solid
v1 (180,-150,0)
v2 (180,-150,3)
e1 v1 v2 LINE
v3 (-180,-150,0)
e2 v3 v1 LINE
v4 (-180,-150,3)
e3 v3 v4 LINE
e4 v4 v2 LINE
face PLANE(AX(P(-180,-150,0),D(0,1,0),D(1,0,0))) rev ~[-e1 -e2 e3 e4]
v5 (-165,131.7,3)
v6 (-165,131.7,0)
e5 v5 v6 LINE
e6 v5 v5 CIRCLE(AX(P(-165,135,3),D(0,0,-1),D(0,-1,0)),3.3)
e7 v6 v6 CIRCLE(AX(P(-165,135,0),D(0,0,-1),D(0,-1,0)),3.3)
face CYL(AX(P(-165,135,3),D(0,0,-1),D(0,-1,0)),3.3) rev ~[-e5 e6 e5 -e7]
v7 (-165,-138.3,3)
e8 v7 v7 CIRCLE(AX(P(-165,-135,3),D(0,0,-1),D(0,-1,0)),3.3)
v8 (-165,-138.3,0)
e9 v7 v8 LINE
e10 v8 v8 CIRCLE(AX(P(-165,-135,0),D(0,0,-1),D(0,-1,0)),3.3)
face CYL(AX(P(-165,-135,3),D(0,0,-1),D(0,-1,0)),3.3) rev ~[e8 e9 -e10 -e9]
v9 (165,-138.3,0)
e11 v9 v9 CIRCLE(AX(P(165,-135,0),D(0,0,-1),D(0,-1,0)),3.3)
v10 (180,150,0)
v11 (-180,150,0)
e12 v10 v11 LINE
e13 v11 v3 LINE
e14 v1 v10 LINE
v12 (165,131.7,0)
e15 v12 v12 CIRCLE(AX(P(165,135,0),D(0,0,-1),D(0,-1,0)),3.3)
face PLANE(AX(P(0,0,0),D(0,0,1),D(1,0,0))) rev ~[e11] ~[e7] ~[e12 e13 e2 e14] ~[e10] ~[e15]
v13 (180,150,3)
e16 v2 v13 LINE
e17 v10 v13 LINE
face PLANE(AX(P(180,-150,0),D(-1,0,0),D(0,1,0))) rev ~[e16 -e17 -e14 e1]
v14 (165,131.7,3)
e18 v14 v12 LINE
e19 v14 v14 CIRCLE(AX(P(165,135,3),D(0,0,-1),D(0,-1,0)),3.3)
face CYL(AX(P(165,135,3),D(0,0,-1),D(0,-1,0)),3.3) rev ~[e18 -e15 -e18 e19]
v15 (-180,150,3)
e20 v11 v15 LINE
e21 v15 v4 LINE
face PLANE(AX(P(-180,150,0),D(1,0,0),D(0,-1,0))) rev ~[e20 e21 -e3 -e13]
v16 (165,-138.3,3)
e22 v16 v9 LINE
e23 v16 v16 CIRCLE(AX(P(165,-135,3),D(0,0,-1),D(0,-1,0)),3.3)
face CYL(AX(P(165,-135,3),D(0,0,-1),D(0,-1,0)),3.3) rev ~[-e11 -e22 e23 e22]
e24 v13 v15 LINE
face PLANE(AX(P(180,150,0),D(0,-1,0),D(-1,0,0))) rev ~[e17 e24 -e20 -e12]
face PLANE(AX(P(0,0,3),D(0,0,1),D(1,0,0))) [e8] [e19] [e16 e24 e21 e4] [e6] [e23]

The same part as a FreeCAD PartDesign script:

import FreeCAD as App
import Part
import Sketcher
Q = App.Units.Quantity


def add_polygon(sketch, points):
    """Adds a closed chain of lines whose ends are joined by coincident constraints."""
    first, n = sketch.GeometryCount, len(points)
    for a, b in zip(points, points[1:] + points[:1]):
        sketch.addGeometry(Part.LineSegment(App.Vector(*a, 0), App.Vector(*b, 0)), False)
    for i in range(n):
        sketch.addConstraint(Sketcher.Constraint("Coincident", first + i, 2, first + (i + 1) % n, 1))

doc = App.newDocument("Part")
body = doc.addObject("PartDesign::Body", "Body")

# Sketch on XY plane
sketch1 = body.newObject("Sketcher::SketchObject", "Sketch")
sketch1.AttachmentSupport = (doc.getObject("XY_Plane"), [""])
sketch1.MapMode = "FlatFace"
add_polygon(sketch1, [(180, -150), (180, 150), (-180, 150), (-180, -150)])  # lines 0-3
sketch1.addConstraint([
    Sketcher.Constraint("Vertical", 0),
    Sketcher.Constraint("Horizontal", 1),
    Sketcher.Constraint("Vertical", 2),
    Sketcher.Constraint("Horizontal", 3),
    Sketcher.Constraint("Symmetric", 0, 2, 2, 2, -1, 1),
    Sketcher.Constraint("DistanceX", 1, 2, 1, 1, Q("360 mm")),
    Sketcher.Constraint("DistanceY", 0, 1, 0, 2, Q("300 mm")),
])
pad1 = body.newObject("PartDesign::Pad", "Pad")
pad1.Profile = sketch1
pad1.Length = 3

# Sketch on XY plane
sketch2 = body.newObject("Sketcher::SketchObject", "Sketch001")
sketch2.AttachmentSupport = (doc.getObject("XY_Plane"), [""])
sketch2.MapMode = "FlatFace"
sketch2.AttachmentOffset = App.Placement(App.Vector(0, 0, 3), App.Rotation())
sketch2.addGeometry([
    Part.Circle(App.Vector(-165, 135, 0), App.Vector(0, 0, 1), 3.3),
    Part.Circle(App.Vector(165, 135, 0), App.Vector(0, 0, 1), 3.3),
    Part.Circle(App.Vector(165, -135, 0), App.Vector(0, 0, 1), 3.3),
    Part.Circle(App.Vector(-165, -135, 0), App.Vector(0, 0, 1), 3.3),
], False)
sketch2.addConstraint([
    Sketcher.Constraint("Equal", 0, 1),
    Sketcher.Constraint("Equal", 1, 2),
    Sketcher.Constraint("Equal", 2, 3),
    Sketcher.Constraint("Symmetric", 0, 3, 2, 3, -1, 1),
    Sketcher.Constraint("Symmetric", 1, 3, 3, 3, -1, 1),
    Sketcher.Constraint("Symmetric", 0, 3, 1, 3, -2),
    Sketcher.Constraint("Diameter", 0, Q("6.6 mm")),
    Sketcher.Constraint("DistanceX", 0, 3, -1, 1, Q("165 mm")),
    Sketcher.Constraint("DistanceY", -1, 1, 0, 3, Q("135 mm")),
])
doc.recompute()
hole = body.newObject("PartDesign::Hole", "Hole")
hole.Profile = sketch2
hole.ThreadType = "None"
hole.Diameter = 6.6
hole.DepthType = "ThroughAll"

doc.recompute()
